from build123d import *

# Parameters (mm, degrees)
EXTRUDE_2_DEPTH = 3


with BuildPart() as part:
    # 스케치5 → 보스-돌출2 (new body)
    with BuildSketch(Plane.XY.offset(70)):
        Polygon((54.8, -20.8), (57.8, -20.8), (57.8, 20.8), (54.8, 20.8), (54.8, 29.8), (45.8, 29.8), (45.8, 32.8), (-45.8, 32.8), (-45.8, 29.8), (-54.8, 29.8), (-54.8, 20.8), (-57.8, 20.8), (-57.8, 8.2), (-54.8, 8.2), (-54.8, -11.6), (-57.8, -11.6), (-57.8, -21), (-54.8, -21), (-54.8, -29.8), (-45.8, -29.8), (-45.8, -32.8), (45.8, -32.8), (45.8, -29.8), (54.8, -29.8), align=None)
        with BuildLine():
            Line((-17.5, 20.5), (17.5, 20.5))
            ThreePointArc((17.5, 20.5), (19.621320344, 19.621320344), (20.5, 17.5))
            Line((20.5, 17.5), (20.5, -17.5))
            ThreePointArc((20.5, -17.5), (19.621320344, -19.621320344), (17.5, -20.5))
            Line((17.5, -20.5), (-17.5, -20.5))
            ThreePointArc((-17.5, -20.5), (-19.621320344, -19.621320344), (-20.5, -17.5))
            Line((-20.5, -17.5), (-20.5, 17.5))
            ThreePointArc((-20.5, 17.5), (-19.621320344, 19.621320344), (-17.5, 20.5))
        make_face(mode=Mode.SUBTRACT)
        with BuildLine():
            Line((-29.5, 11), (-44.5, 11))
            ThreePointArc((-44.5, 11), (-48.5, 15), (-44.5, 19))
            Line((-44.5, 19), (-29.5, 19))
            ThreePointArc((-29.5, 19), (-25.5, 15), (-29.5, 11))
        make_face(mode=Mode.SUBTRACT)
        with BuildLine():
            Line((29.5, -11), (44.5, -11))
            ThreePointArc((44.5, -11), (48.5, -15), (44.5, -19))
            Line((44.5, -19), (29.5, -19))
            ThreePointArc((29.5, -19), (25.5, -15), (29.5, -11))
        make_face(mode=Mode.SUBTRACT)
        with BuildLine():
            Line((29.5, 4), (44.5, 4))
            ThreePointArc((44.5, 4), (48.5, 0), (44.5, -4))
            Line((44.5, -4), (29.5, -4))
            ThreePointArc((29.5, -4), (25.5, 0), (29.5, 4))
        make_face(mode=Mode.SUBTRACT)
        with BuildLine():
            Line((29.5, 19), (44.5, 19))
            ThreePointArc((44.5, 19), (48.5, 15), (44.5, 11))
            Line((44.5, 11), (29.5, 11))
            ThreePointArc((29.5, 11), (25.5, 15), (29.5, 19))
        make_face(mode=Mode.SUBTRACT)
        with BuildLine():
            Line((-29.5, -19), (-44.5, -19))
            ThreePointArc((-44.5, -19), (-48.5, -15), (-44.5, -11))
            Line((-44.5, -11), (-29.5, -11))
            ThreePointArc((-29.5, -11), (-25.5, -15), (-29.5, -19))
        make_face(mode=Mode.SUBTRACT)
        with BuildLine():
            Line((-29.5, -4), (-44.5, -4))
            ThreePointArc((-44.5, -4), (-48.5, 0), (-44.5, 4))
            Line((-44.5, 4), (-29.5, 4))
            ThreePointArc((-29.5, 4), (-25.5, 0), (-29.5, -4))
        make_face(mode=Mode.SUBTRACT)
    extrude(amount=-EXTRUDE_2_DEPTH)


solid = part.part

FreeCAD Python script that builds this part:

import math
import FreeCAD as App
import Part
import Sketcher

doc = App.newDocument("Part")
body = doc.addObject("PartDesign::Body", "Body")

# Sketch on XY plane
sketch1 = body.newObject("Sketcher::SketchObject", "Sketch")
sketch1.AttachmentSupport = (doc.getObject("XY_Plane"), [""])
sketch1.MapMode = "FlatFace"
sketch1.AttachmentOffset = App.Placement(App.Vector(0, 0, 70), App.Rotation())
sketch1.addGeometry(Part.LineSegment(App.Vector(54.8, -20.8, 0), App.Vector(57.8, -20.8, 0)), False)
sketch1.addGeometry(Part.LineSegment(App.Vector(57.8, -20.8, 0), App.Vector(57.8, 20.8, 0)), False)
sketch1.addGeometry(Part.LineSegment(App.Vector(57.8, 20.8, 0), App.Vector(54.8, 20.8, 0)), False)
sketch1.addGeometry(Part.LineSegment(App.Vector(54.8, 20.8, 0), App.Vector(54.8, 29.8, 0)), False)
sketch1.addGeometry(Part.LineSegment(App.Vector(54.8, 29.8, 0), App.Vector(45.8, 29.8, 0)), False)
sketch1.addGeometry(Part.LineSegment(App.Vector(45.8, 29.8, 0), App.Vector(45.8, 32.8, 0)), False)
sketch1.addGeometry(Part.LineSegment(App.Vector(45.8, 32.8, 0), App.Vector(-45.8, 32.8, 0)), False)
sketch1.addGeometry(Part.LineSegment(App.Vector(-45.8, 32.8, 0), App.Vector(-45.8, 29.8, 0)), False)
sketch1.addGeometry(Part.LineSegment(App.Vector(-45.8, 29.8, 0), App.Vector(-54.8, 29.8, 0)), False)
sketch1.addGeometry(Part.LineSegment(App.Vector(-54.8, 29.8, 0), App.Vector(-54.8, 20.8, 0)), False)
sketch1.addGeometry(Part.LineSegment(App.Vector(-54.8, 20.8, 0), App.Vector(-57.8, 20.8, 0)), False)
sketch1.addGeometry(Part.LineSegment(App.Vector(-57.8, 20.8, 0), App.Vector(-57.8, 8.2, 0)), False)
sketch1.addGeometry(Part.LineSegment(App.Vector(-57.8, 8.2, 0), App.Vector(-54.8, 8.2, 0)), False)
sketch1.addGeometry(Part.LineSegment(App.Vector(-54.8, 8.2, 0), App.Vector(-54.8, -11.6, 0)), False)
sketch1.addGeometry(Part.LineSegment(App.Vector(-54.8, -11.6, 0), App.Vector(-57.8, -11.6, 0)), False)
sketch1.addGeometry(Part.LineSegment(App.Vector(-57.8, -11.6, 0), App.Vector(-57.8, -21, 0)), False)
sketch1.addGeometry(Part.LineSegment(App.Vector(-57.8, -21, 0), App.Vector(-54.8, -21, 0)), False)
sketch1.addGeometry(Part.LineSegment(App.Vector(-54.8, -21, 0), App.Vector(-54.8, -29.8, 0)), False)
sketch1.addGeometry(Part.LineSegment(App.Vector(-54.8, -29.8, 0), App.Vector(-45.8, -29.8, 0)), False)
sketch1.addGeometry(Part.LineSegment(App.Vector(-45.8, -29.8, 0), App.Vector(-45.8, -32.8, 0)), False)
sketch1.addGeometry(Part.LineSegment(App.Vector(-45.8, -32.8, 0), App.Vector(45.8, -32.8, 0)), False)
sketch1.addGeometry(Part.LineSegment(App.Vector(45.8, -32.8, 0), App.Vector(45.8, -29.8, 0)), False)
sketch1.addGeometry(Part.LineSegment(App.Vector(45.8, -29.8, 0), App.Vector(54.8, -29.8, 0)), False)
sketch1.addGeometry(Part.LineSegment(App.Vector(54.8, -29.8, 0), App.Vector(54.8, -20.8, 0)), False)
sketch1.addGeometry(Part.ArcOfCircle(Part.Circle(App.Vector(-29.5, -15, 0), App.Vector(0, 0, 1), 4), math.radians(-90), math.radians(90)), False)
sketch1.addGeometry(Part.LineSegment(App.Vector(-29.5, -19, 0), App.Vector(-44.5, -19, 0)), False)
sketch1.addGeometry(Part.ArcOfCircle(Part.Circle(App.Vector(-44.5, -15, 0), App.Vector(0, 0, 1), 4), math.radians(90), math.radians(270)), False)
sketch1.addGeometry(Part.LineSegment(App.Vector(-44.5, -11, 0), App.Vector(-29.5, -11, 0)), False)
sketch1.addGeometry(Part.ArcOfCircle(Part.Circle(App.Vector(29.5, -15, 0), App.Vector(0, 0, 1), 4), math.radians(90), math.radians(270)), False)
sketch1.addGeometry(Part.LineSegment(App.Vector(29.5, -11, 0), App.Vector(44.5, -11, 0)), False)
sketch1.addGeometry(Part.ArcOfCircle(Part.Circle(App.Vector(44.5, -15, 0), App.Vector(0, 0, 1), 4), math.radians(-90), math.radians(90)), False)
sketch1.addGeometry(Part.LineSegment(App.Vector(44.5, -19, 0), App.Vector(29.5, -19, 0)), False)
sketch1.addGeometry(Part.ArcOfCircle(Part.Circle(App.Vector(-29.5, 0, 0), App.Vector(0, 0, 1), 4), math.radians(-90), math.radians(90)), False)
sketch1.addGeometry(Part.LineSegment(App.Vector(-29.5, -4, 0), App.Vector(-44.5, -4, 0)), False)
sketch1.addGeometry(Part.ArcOfCircle(Part.Circle(App.Vector(-44.5, 0, 0), App.Vector(0, 0, 1), 4), math.radians(90), math.radians(270)), False)
sketch1.addGeometry(Part.LineSegment(App.Vector(-44.5, 4, 0), App.Vector(-29.5, 4, 0)), False)
sketch1.addGeometry(Part.ArcOfCircle(Part.Circle(App.Vector(-29.5, 15, 0), App.Vector(0, 0, 1), 4), math.radians(-90), math.radians(90)), False)
sketch1.addGeometry(Part.LineSegment(App.Vector(-29.5, 11, 0), App.Vector(-44.5, 11, 0)), False)
sketch1.addGeometry(Part.ArcOfCircle(Part.Circle(App.Vector(-44.5, 15, 0), App.Vector(0, 0, 1), 4), math.radians(90), math.radians(270)), False)
sketch1.addGeometry(Part.LineSegment(App.Vector(-44.5, 19, 0), App.Vector(-29.5, 19, 0)), False)
sketch1.addGeometry(Part.ArcOfCircle(Part.Circle(App.Vector(-17.5, 17.5, 0), App.Vector(0, 0, 1), 3), math.radians(90), math.radians(180)), False)
sketch1.addGeometry(Part.LineSegment(App.Vector(-17.5, 20.5, 0), App.Vector(17.5, 20.5, 0)), False)
sketch1.addGeometry(Part.ArcOfCircle(Part.Circle(App.Vector(17.5, 17.5, 0), App.Vector(0, 0, 1), 3), math.radians(0), math.radians(90)), False)
sketch1.addGeometry(Part.LineSegment(App.Vector(20.5, 17.5, 0), App.Vector(20.5, -17.5, 0)), False)
sketch1.addGeometry(Part.ArcOfCircle(Part.Circle(App.Vector(17.5, -17.5, 0), App.Vector(0, 0, 1), 3), math.radians(-90), math.radians(0)), False)
sketch1.addGeometry(Part.LineSegment(App.Vector(17.5, -20.5, 0), App.Vector(-17.5, -20.5, 0)), False)
sketch1.addGeometry(Part.ArcOfCircle(Part.Circle(App.Vector(-17.5, -17.5, 0), App.Vector(0, 0, 1), 3), math.radians(180), math.radians(270)), False)
sketch1.addGeometry(Part.LineSegment(App.Vector(-20.5, -17.5, 0), App.Vector(-20.5, 17.5, 0)), False)
sketch1.addGeometry(Part.ArcOfCircle(Part.Circle(App.Vector(29.5, 0, 0), App.Vector(0, 0, 1), 4), math.radians(90), math.radians(270)), False)
sketch1.addGeometry(Part.LineSegment(App.Vector(29.5, 4, 0), App.Vector(44.5, 4, 0)), False)
sketch1.addGeometry(Part.ArcOfCircle(Part.Circle(App.Vector(44.5, 0, 0), App.Vector(0, 0, 1), 4), math.radians(-90), math.radians(90)), False)
sketch1.addGeometry(Part.LineSegment(App.Vector(44.5, -4, 0), App.Vector(29.5, -4, 0)), False)
sketch1.addGeometry(Part.ArcOfCircle(Part.Circle(App.Vector(29.5, 15, 0), App.Vector(0, 0, 1), 4), math.radians(90), math.radians(270)), False)
sketch1.addGeometry(Part.LineSegment(App.Vector(29.5, 19, 0), App.Vector(44.5, 19, 0)), False)
sketch1.addGeometry(Part.ArcOfCircle(Part.Circle(App.Vector(44.5, 15, 0), App.Vector(0, 0, 1), 4), math.radians(-90), math.radians(90)), False)
sketch1.addGeometry(Part.LineSegment(App.Vector(44.5, 11, 0), App.Vector(29.5, 11, 0)), False)
sketch1.addConstraint(Sketcher.Constraint("Coincident", 0, 2, 1, 1))
sketch1.addConstraint(Sketcher.Constraint("Coincident", 1, 2, 2, 1))
sketch1.addConstraint(Sketcher.Constraint("Coincident", 2, 2, 3, 1))
sketch1.addConstraint(Sketcher.Constraint("Coincident", 3, 2, 4, 1))
sketch1.addConstraint(Sketcher.Constraint("Coincident", 4, 2, 5, 1))
sketch1.addConstraint(Sketcher.Constraint("Coincident", 5, 2, 6, 1))
sketch1.addConstraint(Sketcher.Constraint("Coincident", 6, 2, 7, 1))
sketch1.addConstraint(Sketcher.Constraint("Coincident", 7, 2, 8, 1))
sketch1.addConstraint(Sketcher.Constraint("Coincident", 8, 2, 9, 1))
sketch1.addConstraint(Sketcher.Constraint("Coincident", 9, 2, 10, 1))
sketch1.addConstraint(Sketcher.Constraint("Coincident", 10, 2, 11, 1))
sketch1.addConstraint(Sketcher.Constraint("Coincident", 11, 2, 12, 1))
sketch1.addConstraint(Sketcher.Constraint("Coincident", 12, 2, 13, 1))
sketch1.addConstraint(Sketcher.Constraint("Coincident", 13, 2, 14, 1))
sketch1.addConstraint(Sketcher.Constraint("Coincident", 14, 2, 15, 1))
sketch1.addConstraint(Sketcher.Constraint("Coincident", 15, 2, 16, 1))
sketch1.addConstraint(Sketcher.Constraint("Coincident", 16, 2, 17, 1))
sketch1.addConstraint(Sketcher.Constraint("Coincident", 17, 2, 18, 1))
sketch1.addConstraint(Sketcher.Constraint("Coincident", 18, 2, 19, 1))
sketch1.addConstraint(Sketcher.Constraint("Coincident", 19, 2, 20, 1))
sketch1.addConstraint(Sketcher.Constraint("Coincident", 20, 2, 21, 1))
sketch1.addConstraint(Sketcher.Constraint("Coincident", 21, 2, 22, 1))
sketch1.addConstraint(Sketcher.Constraint("Coincident", 22, 2, 23, 1))
sketch1.addConstraint(Sketcher.Constraint("Coincident", 23, 2, 0, 1))
sketch1.addConstraint(Sketcher.Constraint("Tangent", 24, 1, 25, 1))
sketch1.addConstraint(Sketcher.Constraint("Tangent", 25, 2, 26, 2))
sketch1.addConstraint(Sketcher.Constraint("Tangent", 26, 1, 27, 1))
sketch1.addConstraint(Sketcher.Constraint("Tangent", 27, 2, 24, 2))
sketch1.addConstraint(Sketcher.Constraint("Tangent", 28, 1, 29, 1))
sketch1.addConstraint(Sketcher.Constraint("Tangent", 29, 2, 30, 2))
sketch1.addConstraint(Sketcher.Constraint("Tangent", 30, 1, 31, 1))
sketch1.addConstraint(Sketcher.Constraint("Tangent", 31, 2, 28, 2))
sketch1.addConstraint(Sketcher.Constraint("Tangent", 32, 1, 33, 1))
sketch1.addConstraint(Sketcher.Constraint("Tangent", 33, 2, 34, 2))
sketch1.addConstraint(Sketcher.Constraint("Tangent", 34, 1, 35, 1))
sketch1.addConstraint(Sketcher.Constraint("Tangent", 35, 2, 32, 2))
sketch1.addConstraint(Sketcher.Constraint("Tangent", 36, 1, 37, 1))
sketch1.addConstraint(Sketcher.Constraint("Tangent", 37, 2, 38, 2))
sketch1.addConstraint(Sketcher.Constraint("Tangent", 38, 1, 39, 1))
sketch1.addConstraint(Sketcher.Constraint("Tangent", 39, 2, 36, 2))
sketch1.addConstraint(Sketcher.Constraint("Tangent", 40, 1, 41, 1))
sketch1.addConstraint(Sketcher.Constraint("Tangent", 41, 2, 42, 2))
sketch1.addConstraint(Sketcher.Constraint("Tangent", 42, 1, 43, 1))
sketch1.addConstraint(Sketcher.Constraint("Tangent", 43, 2, 44, 2))
sketch1.addConstraint(Sketcher.Constraint("Tangent", 44, 1, 45, 1))
sketch1.addConstraint(Sketcher.Constraint("Tangent", 45, 2, 46, 2))
sketch1.addConstraint(Sketcher.Constraint("Tangent", 46, 1, 47, 1))
sketch1.addConstraint(Sketcher.Constraint("Tangent", 47, 2, 40, 2))
sketch1.addConstraint(Sketcher.Constraint("Tangent", 48, 1, 49, 1))
sketch1.addConstraint(Sketcher.Constraint("Tangent", 49, 2, 50, 2))
sketch1.addConstraint(Sketcher.Constraint("Tangent", 50, 1, 51, 1))
sketch1.addConstraint(Sketcher.Constraint("Tangent", 51, 2, 48, 2))
sketch1.addConstraint(Sketcher.Constraint("Tangent", 52, 1, 53, 1))
sketch1.addConstraint(Sketcher.Constraint("Tangent", 53, 2, 54, 2))
sketch1.addConstraint(Sketcher.Constraint("Tangent", 54, 1, 55, 1))
sketch1.addConstraint(Sketcher.Constraint("Tangent", 55, 2, 52, 2))
sketch1.addConstraint(Sketcher.Constraint("Horizontal", 0))
sketch1.addConstraint(Sketcher.Constraint("Vertical", 1))
sketch1.addConstraint(Sketcher.Constraint("Horizontal", 2))
sketch1.addConstraint(Sketcher.Constraint("Vertical", 3))
sketch1.addConstraint(Sketcher.Constraint("Horizontal", 4))
sketch1.addConstraint(Sketcher.Constraint("Vertical", 5))
sketch1.addConstraint(Sketcher.Constraint("Horizontal", 6))
sketch1.addConstraint(Sketcher.Constraint("Vertical", 7))
sketch1.addConstraint(Sketcher.Constraint("Horizontal", 8))
sketch1.addConstraint(Sketcher.Constraint("Vertical", 9))
sketch1.addConstraint(Sketcher.Constraint("Horizontal", 10))
sketch1.addConstraint(Sketcher.Constraint("Vertical", 11))
sketch1.addConstraint(Sketcher.Constraint("Horizontal", 12))
sketch1.addConstraint(Sketcher.Constraint("Vertical", 13))
sketch1.addConstraint(Sketcher.Constraint("Horizontal", 14))
sketch1.addConstraint(Sketcher.Constraint("Vertical", 15))
sketch1.addConstraint(Sketcher.Constraint("Horizontal", 16))
sketch1.addConstraint(Sketcher.Constraint("Vertical", 17))
sketch1.addConstraint(Sketcher.Constraint("Horizontal", 18))
sketch1.addConstraint(Sketcher.Constraint("Vertical", 19))
sketch1.addConstraint(Sketcher.Constraint("Horizontal", 20))
sketch1.addConstraint(Sketcher.Constraint("Vertical", 21))
sketch1.addConstraint(Sketcher.Constraint("Horizontal", 22))
sketch1.addConstraint(Sketcher.Constraint("Vertical", 23))
sketch1.addConstraint(Sketcher.Constraint("Horizontal", 25))
sketch1.addConstraint(Sketcher.Constraint("Horizontal", 27))
sketch1.addConstraint(Sketcher.Constraint("Horizontal", 29))
sketch1.addConstraint(Sketcher.Constraint("Horizontal", 31))
sketch1.addConstraint(Sketcher.Constraint("Horizontal", 33))
sketch1.addConstraint(Sketcher.Constraint("Horizontal", 35))
sketch1.addConstraint(Sketcher.Constraint("Horizontal", 37))
sketch1.addConstraint(Sketcher.Constraint("Horizontal", 39))
sketch1.addConstraint(Sketcher.Constraint("Horizontal", 41))
sketch1.addConstraint(Sketcher.Constraint("Vertical", 43))
sketch1.addConstraint(Sketcher.Constraint("Horizontal", 45))
sketch1.addConstraint(Sketcher.Constraint("Vertical", 47))
sketch1.addConstraint(Sketcher.Constraint("Horizontal", 49))
sketch1.addConstraint(Sketcher.Constraint("Horizontal", 51))
sketch1.addConstraint(Sketcher.Constraint("Horizontal", 53))
sketch1.addConstraint(Sketcher.Constraint("Horizontal", 55))
sketch1.addConstraint(Sketcher.Constraint("Equal", 26, 28))
sketch1.addConstraint(Sketcher.Constraint("Equal", 30, 32))
sketch1.addConstraint(Sketcher.Constraint("Equal", 34, 36))
sketch1.addConstraint(Sketcher.Constraint("Equal", 40, 42))
sketch1.addConstraint(Sketcher.Constraint("Equal", 42, 44))
sketch1.addConstraint(Sketcher.Constraint("Equal", 44, 46))
sketch1.addConstraint(Sketcher.Constraint("Equal", 38, 48))
sketch1.addConstraint(Sketcher.Constraint("Equal", 50, 52))
sketch1.addConstraint(Sketcher.Constraint("Symmetric", 28, 3, 36, 3, -1, 1))
sketch1.addConstraint(Sketcher.Constraint("Symmetric", 40, 3, 44, 3, -1, 1))
sketch1.addConstraint(Sketcher.Constraint("Symmetric", 32, 3, 48, 3, -1, 1))
sketch1.addConstraint(Sketcher.Constraint("Symmetric", 24, 3, 52, 3, -1, 1))
sketch1.addConstraint(Sketcher.Constraint("Symmetric", 0, 2, 10, 2, -1, 1))
sketch1.addConstraint(Sketcher.Constraint("Symmetric", 3, 2, 17, 2, -1, 1))
sketch1.addConstraint(Sketcher.Constraint("Symmetric", 5, 2, 19, 2, -1, 1))
sketch1.addConstraint(Sketcher.Constraint("Symmetric", 7, 2, 21, 2, -1, 1))
sketch1.addConstraint(Sketcher.Constraint("Symmetric", 24, 3, 28, 3, -2))
sketch1.addConstraint(Sketcher.Constraint("Symmetric", 34, 3, 50, 3, -2))
sketch1.addConstraint(Sketcher.Constraint("Symmetric", 4, 2, 7, 2, -2))
sketch1.addConstraint(Sketcher.Constraint("Symmetric", 2, 2, 9, 2, -2))
sketch1.addConstraint(Sketcher.Constraint("Vertical", 24, 3, 32, 3))
sketch1.addConstraint(Sketcher.Constraint("Vertical", 26, 3, 34, 3))
sketch1.addConstraint(Sketcher.Constraint("Vertical", 34, 3, 38, 3))
sketch1.addConstraint(Sketcher.Constraint("Vertical", 30, 3, 50, 3))
sketch1.addConstraint(Sketcher.Constraint("Vertical", 50, 3, 54, 3))
sketch1.addConstraint(Sketcher.Constraint("Vertical", 9, 2, 12, 2))
sketch1.addConstraint(Sketcher.Constraint("Vertical", 11, 2, 14, 2))
sketch1.addConstraint(Sketcher.Constraint("Vertical", 3, 2, 22, 2))
sketch1.addConstraint(Sketcher.Constraint("Equal", 22, 3))
sketch1.addConstraint(Sketcher.Constraint("Equal", 16, 5))
sketch1.addConstraint(Sketcher.Constraint("Equal", 45, 43))
sketch1.addConstraint(Sketcher.Constraint("Radius", 24, 4.0))
sketch1.addConstraint(Sketcher.Constraint("Radius", 40, 3.0))
sketch1.addConstraint(Sketcher.Constraint("DistanceX", 0, 1, 0, 2, 3.0))
sketch1.addConstraint(Sketcher.Constraint("DistanceX", 4, 2, 4, 1, 9.0))
sketch1.addConstraint(Sketcher.Constraint("DistanceX", 25, 2, 25, 1, 15.0))
sketch1.addConstraint(Sketcher.Constraint("DistanceX", 41, 1, 41, 2, 35.0))
sketch1.addConstraint(Sketcher.Constraint("DistanceX", 6, 2, 6, 1, 91.6))
sketch1.addConstraint(Sketcher.Constraint("DistanceY", 1, 1, 1, 2, 41.6))
sketch1.addConstraint(Sketcher.Constraint("DistanceY", 11, 2, 11, 1, 12.6))
sketch1.addConstraint(Sketcher.Constraint("DistanceY", 13, 2, 13, 1, 19.8))
sketch1.addConstraint(Sketcher.Constraint("DistanceY", 15, 2, 15, 1, 9.4))
sketch1.addConstraint(Sketcher.Constraint("DistanceY", 24, 3, -1, 1, 15.0))
sketch1.addConstraint(Sketcher.Constraint("DistanceX", 24, 3, -1, 1, 29.5))
pad1 = body.newObject("PartDesign::Pad", "Pad")
pad1.Profile = sketch1
pad1.Length = 3
pad1.Reversed = True

doc.recompute()
